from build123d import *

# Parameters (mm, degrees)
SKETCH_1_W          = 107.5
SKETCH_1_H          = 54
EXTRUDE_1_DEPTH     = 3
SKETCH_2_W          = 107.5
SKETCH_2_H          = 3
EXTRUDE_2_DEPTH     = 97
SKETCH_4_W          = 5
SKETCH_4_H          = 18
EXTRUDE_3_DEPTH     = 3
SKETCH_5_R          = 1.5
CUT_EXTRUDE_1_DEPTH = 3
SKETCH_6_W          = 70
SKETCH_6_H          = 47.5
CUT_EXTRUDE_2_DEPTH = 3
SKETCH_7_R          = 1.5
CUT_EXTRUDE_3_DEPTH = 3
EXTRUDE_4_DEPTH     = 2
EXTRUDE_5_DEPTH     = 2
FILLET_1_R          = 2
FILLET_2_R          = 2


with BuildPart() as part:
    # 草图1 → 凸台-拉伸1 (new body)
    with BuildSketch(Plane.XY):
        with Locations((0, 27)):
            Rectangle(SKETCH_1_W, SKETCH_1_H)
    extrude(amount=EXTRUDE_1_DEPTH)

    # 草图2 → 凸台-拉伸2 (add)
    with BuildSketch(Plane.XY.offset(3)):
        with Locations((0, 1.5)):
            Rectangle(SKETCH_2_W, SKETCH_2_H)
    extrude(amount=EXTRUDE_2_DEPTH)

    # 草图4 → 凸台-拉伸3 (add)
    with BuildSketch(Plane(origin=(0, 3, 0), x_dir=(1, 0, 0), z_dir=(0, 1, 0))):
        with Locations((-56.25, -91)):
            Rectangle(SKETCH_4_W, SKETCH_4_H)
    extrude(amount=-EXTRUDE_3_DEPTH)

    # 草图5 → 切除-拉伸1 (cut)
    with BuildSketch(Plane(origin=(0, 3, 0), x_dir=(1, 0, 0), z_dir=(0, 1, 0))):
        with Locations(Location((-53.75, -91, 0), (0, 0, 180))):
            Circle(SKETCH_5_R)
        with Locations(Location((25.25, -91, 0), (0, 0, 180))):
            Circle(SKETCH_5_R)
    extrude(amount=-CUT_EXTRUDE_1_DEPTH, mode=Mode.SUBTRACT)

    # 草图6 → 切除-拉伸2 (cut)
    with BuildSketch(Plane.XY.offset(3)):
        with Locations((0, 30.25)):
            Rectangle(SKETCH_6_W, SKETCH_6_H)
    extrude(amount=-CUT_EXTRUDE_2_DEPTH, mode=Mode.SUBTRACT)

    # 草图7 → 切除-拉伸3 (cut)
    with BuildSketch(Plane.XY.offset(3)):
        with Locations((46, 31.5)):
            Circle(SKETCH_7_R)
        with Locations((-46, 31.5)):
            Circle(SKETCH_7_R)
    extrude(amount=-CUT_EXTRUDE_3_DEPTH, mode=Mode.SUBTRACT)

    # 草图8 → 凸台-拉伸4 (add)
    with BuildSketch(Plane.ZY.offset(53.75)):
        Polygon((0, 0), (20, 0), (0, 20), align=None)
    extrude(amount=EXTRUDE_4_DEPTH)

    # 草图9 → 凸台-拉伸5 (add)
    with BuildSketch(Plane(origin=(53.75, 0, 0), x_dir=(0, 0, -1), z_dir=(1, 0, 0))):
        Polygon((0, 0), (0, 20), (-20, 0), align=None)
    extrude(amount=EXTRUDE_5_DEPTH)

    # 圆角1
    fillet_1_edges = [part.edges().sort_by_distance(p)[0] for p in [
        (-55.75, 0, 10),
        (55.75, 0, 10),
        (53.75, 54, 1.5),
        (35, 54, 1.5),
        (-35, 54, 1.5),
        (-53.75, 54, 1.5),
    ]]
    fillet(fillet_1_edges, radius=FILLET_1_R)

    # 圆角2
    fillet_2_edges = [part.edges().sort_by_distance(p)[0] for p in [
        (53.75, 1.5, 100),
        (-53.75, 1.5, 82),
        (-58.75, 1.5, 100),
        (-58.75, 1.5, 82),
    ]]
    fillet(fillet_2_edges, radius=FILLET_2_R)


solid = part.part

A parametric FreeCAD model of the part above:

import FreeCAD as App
import Part
import Sketcher

V = App.Vector


def edges_at(feature, points):
    """Names of the edges that pass closest to the given points."""
    edges = feature.Shape.Edges
    near = lambda p: min(range(len(edges)), key=lambda i: edges[i].distToShape(Part.Vertex(*p))[0])
    return sorted({f"Edge{near(p) + 1}" for p in points})


def add_polygon(sketch, points):
    """Adds a closed chain of lines whose ends are joined by coincident constraints."""
    first, n = sketch.GeometryCount, len(points)
    for a, b in zip(points, points[1:] + points[:1]):
        sketch.addGeometry(Part.LineSegment(App.Vector(*a, 0), App.Vector(*b, 0)), False)
    for i in range(n):
        sketch.addConstraint(Sketcher.Constraint("Coincident", first + i, 2, first + (i + 1) % n, 1))

doc = App.newDocument("Part")
params = doc.addObject("Spreadsheet::Sheet", "Params")
for row, (alias, value) in enumerate([
    ("sketch1_height", "54 mm"),
    ("sketch1_width", "107.5 mm"),
    ("pad1_length", "3 mm"),
    ("sketch2_height", "3 mm"),
    ("sketch2_width", "107.5 mm"),
    ("pad2_length", "97 mm"),
    ("sketch3_width", "5 mm"),
    ("sketch3_height", "18 mm"),
    ("pad3_length", "3 mm"),
    ("sketch4_diameter", "3 mm"),
    ("pocket1_length", "3 mm"),
    ("sketch5_width", "70 mm"),
    ("sketch5_height", "47.5 mm"),
    ("pocket2_length", "3 mm"),
    ("sketch6_diameter", "3 mm"),
    ("pocket3_length", "3 mm"),
    ("sketch7_width", "20 mm"),
    ("pad4_length", "2 mm"),
    ("sketch8_width", "20 mm"),
    ("pad5_length", "2 mm"),
    ("fillet_radius", "2 mm"),
    ("fillet2_radius", "2 mm"),
], start=1):
    params.set(f"A{row}", alias)
    params.set(f"B{row}", "=" + value)
    params.setAlias(f"B{row}", alias)

body = doc.addObject("PartDesign::Body", "Body")

sketch1 = body.newObject("Sketcher::SketchObject", "Sketch")
sketch1.AttachmentSupport = (doc.getObject("XY_Plane"), [""])
sketch1.MapMode = "FlatFace"
add_polygon(sketch1, [(-54, 54), (-54, 0), (54, 0), (54, 54)])
sketch1.addConstraint([
    Sketcher.Constraint("Vertical", 0),
    Sketcher.Constraint("Horizontal", 1),
    Sketcher.Constraint("Vertical", 2),
    Sketcher.Constraint("Horizontal", 3),
    Sketcher.Constraint("Symmetric", 0, 2, 1, 2, -1, 1),
    Sketcher.Constraint("DistanceY", 0, 2, 0, 1, 54.0),
    Sketcher.Constraint("DistanceX", 1, 1, 1, 2, 107.5),
])
sketch1.setExpression("Constraints[9]", "Params.sketch1_height")
sketch1.setExpression("Constraints[10]", "Params.sketch1_width")
pad1 = body.newObject("PartDesign::Pad", "Pad")
pad1.Profile = sketch1
pad1.setExpression("Length", "Params.pad1_length")

sketch2 = body.newObject("Sketcher::SketchObject", "Sketch001")
sketch2.AttachmentSupport = (doc.getObject("XY_Plane"), [""])
sketch2.MapMode = "FlatFace"
sketch2.AttachmentOffset = App.Placement(V(0, 0, 3), App.Rotation())
add_polygon(sketch2, [(-53.8, 3), (-53.8, 0), (53.8, 0), (53.8, 3)])
sketch2.addConstraint([
    Sketcher.Constraint("Vertical", 0),
    Sketcher.Constraint("Horizontal", 1),
    Sketcher.Constraint("Vertical", 2),
    Sketcher.Constraint("Horizontal", 3),
    Sketcher.Constraint("Symmetric", 0, 2, 1, 2, -1, 1),
    Sketcher.Constraint("DistanceY", 0, 2, 0, 1, 3.0),
    Sketcher.Constraint("DistanceX", 1, 1, 1, 2, 107.5),
])
sketch2.setExpression("Constraints[9]", "Params.sketch2_height")
sketch2.setExpression("Constraints[10]", "Params.sketch2_width")
pad2 = body.newObject("PartDesign::Pad", "Pad001")
pad2.Profile = sketch2
pad2.setExpression("Length", "Params.pad2_length")

sketch3 = body.newObject("Sketcher::SketchObject", "Sketch002")
sketch3.AttachmentSupport = (doc.getObject("XZ_Plane"), [""])
sketch3.MapMode = "FlatFace"
sketch3.AttachmentOffset = App.Placement(V(0, 0, -3), App.Rotation())
add_polygon(sketch3, [(-59, 82), (-59, 100), (-54, 100), (-54, 82)])
sketch3.addConstraint([
    Sketcher.Constraint("Vertical", 0),
    Sketcher.Constraint("Horizontal", 1),
    Sketcher.Constraint("Vertical", 2),
    Sketcher.Constraint("Horizontal", 3),
    Sketcher.Constraint("DistanceX", 1, 1, 1, 2, 5.0),
    Sketcher.Constraint("DistanceY", 0, 1, 0, 2, 18.0),
    Sketcher.Constraint("DistanceY", -1, 1, 0, 2, 100.0),
    Sketcher.Constraint("DistanceX", 0, 2, -1, 1, 58.75),
])
sketch3.setExpression("Constraints[8]", "Params.sketch3_width")
sketch3.setExpression("Constraints[9]", "Params.sketch3_height")
pad3 = body.newObject("PartDesign::Pad", "Pad002")
pad3.Profile = sketch3
pad3.setExpression("Length", "Params.pad3_length")

sketch4 = body.newObject("Sketcher::SketchObject", "Sketch003")
sketch4.AttachmentSupport = (doc.getObject("XZ_Plane"), [""])
sketch4.MapMode = "FlatFace"
sketch4.AttachmentOffset = App.Placement(V(0, 0, -3), App.Rotation())
sketch4.addGeometry([
    Part.Circle(V(-53.8, 91, 0), V(0, 0, 1), 1.5),
    Part.Circle(V(25.2, 91, 0), V(0, 0, 1), 1.5),
], False)
sketch4.addConstraint([
    Sketcher.Constraint("Equal", 0, 1),
    Sketcher.Constraint("Horizontal", 0, 3, 1, 3),
    Sketcher.Constraint("Diameter", 0, 3.0),
    Sketcher.Constraint("DistanceY", -1, 1, 0, 3, 91.0),
    Sketcher.Constraint("DistanceX", 0, 3, 1, 3, 79.0),
    Sketcher.Constraint("DistanceX", 0, 3, -1, 1, 53.75),
])
sketch4.setExpression("Constraints[2]", "Params.sketch4_diameter")
pocket1 = body.newObject("PartDesign::Pocket", "Pocket")
pocket1.Profile = sketch4
pocket1.setExpression("Length", "Params.pocket1_length")
pocket1.Reversed = True

sketch5 = body.newObject("Sketcher::SketchObject", "Sketch004")
sketch5.AttachmentSupport = (doc.getObject("XY_Plane"), [""])
sketch5.MapMode = "FlatFace"
sketch5.AttachmentOffset = App.Placement(V(0, 0, 3), App.Rotation())
add_polygon(sketch5, [(-35, 54), (-35, 6), (35, 6), (35, 54)])
sketch5.addConstraint([
    Sketcher.Constraint("Vertical", 0),
    Sketcher.Constraint("Horizontal", 1),
    Sketcher.Constraint("Vertical", 2),
    Sketcher.Constraint("Horizontal", 3),
    Sketcher.Constraint("DistanceX", 1, 1, 1, 2, 70.0),
    Sketcher.Constraint("DistanceY", 0, 2, 0, 1, 47.5),
    Sketcher.Constraint("DistanceX", 0, 2, -1, 1, 35.0),
    Sketcher.Constraint("DistanceY", -1, 1, 2, 2, 54.0),
])
sketch5.setExpression("Constraints[8]", "Params.sketch5_width")
sketch5.setExpression("Constraints[9]", "Params.sketch5_height")
pocket2 = body.newObject("PartDesign::Pocket", "Pocket001")
pocket2.Profile = sketch5
pocket2.setExpression("Length", "Params.pocket2_length")

sketch6 = body.newObject("Sketcher::SketchObject", "Sketch005")
sketch6.AttachmentSupport = (doc.getObject("XY_Plane"), [""])
sketch6.MapMode = "FlatFace"
sketch6.AttachmentOffset = App.Placement(V(0, 0, 3), App.Rotation())
sketch6.addGeometry([
    Part.Circle(V(46, 31.5, 0), V(0, 0, 1), 1.5),
    Part.Circle(V(-46, 31.5, 0), V(0, 0, 1), 1.5),
], False)
sketch6.addConstraint([
    Sketcher.Constraint("Equal", 0, 1),
    Sketcher.Constraint("Symmetric", 0, 3, 1, 3, -2),
    Sketcher.Constraint("Diameter", 0, 3.0),
    Sketcher.Constraint("DistanceX", -1, 1, 0, 3, 46.0),
    Sketcher.Constraint("DistanceY", -1, 1, 0, 3, 31.5),
])
sketch6.setExpression("Constraints[2]", "Params.sketch6_diameter")
pocket3 = body.newObject("PartDesign::Pocket", "Pocket002")
pocket3.Profile = sketch6
pocket3.setExpression("Length", "Params.pocket3_length")

sketch7 = body.newObject("Sketcher::SketchObject", "Sketch006")
sketch7.AttachmentSupport = (doc.getObject("YZ_Plane"), [""])
sketch7.MapMode = "FlatFace"
sketch7.AttachmentOffset = App.Placement(V(0, 0, -53.75), App.Rotation())
add_polygon(sketch7, [(0, 0), (0, 20), (20, 0)])
sketch7.addConstraint([
    Sketcher.Constraint("Vertical", 0),
    Sketcher.Constraint("Horizontal", 2),
    Sketcher.Constraint("Coincident", 2, 2, -1, 1),
    Sketcher.Constraint("Equal", 2, 0),
    Sketcher.Constraint("DistanceX", 2, 2, 2, 1, 20.0),
])
sketch7.setExpression("Constraints[7]", "Params.sketch7_width")
pad4 = body.newObject("PartDesign::Pad", "Pad003")
pad4.Profile = sketch7
pad4.setExpression("Length", "Params.pad4_length")
pad4.Reversed = True

sketch8 = body.newObject("Sketcher::SketchObject", "Sketch007")
sketch8.AttachmentSupport = (doc.getObject("YZ_Plane"), [""])
sketch8.MapMode = "FlatFace"
sketch8.AttachmentOffset = App.Placement(V(0, 0, 53.75), App.Rotation())
add_polygon(sketch8, [(0, 0), (20, 0), (0, 20)])
sketch8.addConstraint([
    Sketcher.Constraint("Horizontal", 0),
    Sketcher.Constraint("Vertical", 2),
    Sketcher.Constraint("Coincident", 2, 2, -1, 1),
    Sketcher.Constraint("Equal", 0, 2),
    Sketcher.Constraint("DistanceX", 0, 1, 0, 2, 20.0),
])
sketch8.setExpression("Constraints[7]", "Params.sketch8_width")
pad5 = body.newObject("PartDesign::Pad", "Pad004")
pad5.Profile = sketch8
pad5.setExpression("Length", "Params.pad5_length")
doc.recompute()

fillet = body.newObject("PartDesign::Fillet", "Fillet")
fillet.Base = (pad5, edges_at(pad5, [
    (-55.75, 0, 10),
    (55.75, 0, 10),
    (53.75, 54, 1.5),
    (35, 54, 1.5),
    (-35, 54, 1.5),
    (-53.75, 54, 1.5),
]))
fillet.setExpression("Radius", "Params.fillet_radius")
doc.recompute()

fillet2 = body.newObject("PartDesign::Fillet", "Fillet001")
fillet2.Base = (fillet, edges_at(fillet, [
    (53.75, 1.5, 100),
    (-53.75, 1.5, 82),
    (-58.75, 1.5, 100),
    (-58.75, 1.5, 82),
]))
fillet2.setExpression("Radius", "Params.fillet2_radius")

doc.recompute()
